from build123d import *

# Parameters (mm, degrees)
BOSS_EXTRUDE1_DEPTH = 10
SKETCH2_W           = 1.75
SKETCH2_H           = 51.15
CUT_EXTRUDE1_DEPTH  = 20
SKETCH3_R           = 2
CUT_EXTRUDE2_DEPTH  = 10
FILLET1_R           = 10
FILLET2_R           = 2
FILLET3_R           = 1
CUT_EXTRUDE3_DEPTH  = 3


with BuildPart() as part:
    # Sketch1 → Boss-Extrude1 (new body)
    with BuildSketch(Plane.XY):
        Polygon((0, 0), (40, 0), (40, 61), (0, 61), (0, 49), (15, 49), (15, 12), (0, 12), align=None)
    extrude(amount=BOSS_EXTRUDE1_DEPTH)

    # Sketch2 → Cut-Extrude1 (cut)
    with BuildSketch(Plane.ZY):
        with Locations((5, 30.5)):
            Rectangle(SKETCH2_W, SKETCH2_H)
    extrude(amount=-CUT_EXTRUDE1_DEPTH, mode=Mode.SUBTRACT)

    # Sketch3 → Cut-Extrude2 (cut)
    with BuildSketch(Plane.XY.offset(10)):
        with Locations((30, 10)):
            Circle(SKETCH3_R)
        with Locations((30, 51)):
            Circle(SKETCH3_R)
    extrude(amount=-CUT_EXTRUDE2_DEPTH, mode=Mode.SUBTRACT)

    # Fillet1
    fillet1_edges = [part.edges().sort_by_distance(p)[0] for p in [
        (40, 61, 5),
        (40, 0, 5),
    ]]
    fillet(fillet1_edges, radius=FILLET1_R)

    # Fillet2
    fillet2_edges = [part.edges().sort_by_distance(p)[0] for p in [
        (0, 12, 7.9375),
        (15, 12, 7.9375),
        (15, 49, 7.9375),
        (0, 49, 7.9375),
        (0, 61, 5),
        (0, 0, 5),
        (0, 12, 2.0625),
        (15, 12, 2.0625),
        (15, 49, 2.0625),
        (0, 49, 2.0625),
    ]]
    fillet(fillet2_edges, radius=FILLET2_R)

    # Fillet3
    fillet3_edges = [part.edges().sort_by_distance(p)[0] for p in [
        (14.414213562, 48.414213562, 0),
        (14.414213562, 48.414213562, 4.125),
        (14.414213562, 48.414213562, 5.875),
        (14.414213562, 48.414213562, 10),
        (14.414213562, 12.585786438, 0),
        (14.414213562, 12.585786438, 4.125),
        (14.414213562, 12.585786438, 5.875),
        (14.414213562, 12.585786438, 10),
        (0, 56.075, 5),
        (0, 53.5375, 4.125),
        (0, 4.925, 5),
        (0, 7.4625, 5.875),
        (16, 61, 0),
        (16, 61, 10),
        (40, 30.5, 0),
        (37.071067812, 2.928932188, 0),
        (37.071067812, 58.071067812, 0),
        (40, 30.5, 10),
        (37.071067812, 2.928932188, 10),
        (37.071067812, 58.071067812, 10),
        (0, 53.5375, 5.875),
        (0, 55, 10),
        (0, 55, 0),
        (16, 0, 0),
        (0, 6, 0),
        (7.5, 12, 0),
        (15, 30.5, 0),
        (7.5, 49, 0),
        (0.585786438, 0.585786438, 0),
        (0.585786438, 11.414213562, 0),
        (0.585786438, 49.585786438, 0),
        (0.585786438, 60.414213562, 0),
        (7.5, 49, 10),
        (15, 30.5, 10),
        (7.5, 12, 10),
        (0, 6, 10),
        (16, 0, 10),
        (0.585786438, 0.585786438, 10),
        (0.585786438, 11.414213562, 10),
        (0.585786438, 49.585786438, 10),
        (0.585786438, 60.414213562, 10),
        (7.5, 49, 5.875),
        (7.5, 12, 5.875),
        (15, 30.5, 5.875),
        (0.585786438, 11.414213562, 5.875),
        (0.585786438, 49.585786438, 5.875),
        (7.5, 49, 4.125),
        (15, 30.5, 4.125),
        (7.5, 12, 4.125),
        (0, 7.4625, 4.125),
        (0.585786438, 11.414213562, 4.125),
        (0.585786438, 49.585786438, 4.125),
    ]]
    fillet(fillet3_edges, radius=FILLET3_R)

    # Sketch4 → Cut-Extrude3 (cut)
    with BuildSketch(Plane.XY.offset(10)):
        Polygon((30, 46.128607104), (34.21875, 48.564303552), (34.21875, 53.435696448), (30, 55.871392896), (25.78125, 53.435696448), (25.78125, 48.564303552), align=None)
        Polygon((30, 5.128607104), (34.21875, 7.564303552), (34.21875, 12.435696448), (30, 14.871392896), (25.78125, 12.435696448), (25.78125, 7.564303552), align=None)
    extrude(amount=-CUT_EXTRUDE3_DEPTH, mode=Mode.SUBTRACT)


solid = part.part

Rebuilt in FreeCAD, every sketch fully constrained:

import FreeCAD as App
import Part
import Sketcher
from FreeCAD import Vector
Q = App.Units.Quantity


def edges_at(feature, points):
    """Names of the edges that pass closest to the given points."""
    edges = feature.Shape.Edges
    near = lambda p: min(range(len(edges)), key=lambda i: edges[i].distToShape(Part.Vertex(*p))[0])
    return sorted({f"Edge{near(p) + 1}" for p in points})


def add_polygon(sketch, points):
    """Adds a closed chain of lines whose ends are joined by coincident constraints."""
    first, n = sketch.GeometryCount, len(points)
    for a, b in zip(points, points[1:] + points[:1]):
        sketch.addGeometry(Part.LineSegment(App.Vector(*a, 0), App.Vector(*b, 0)), False)
    for i in range(n):
        sketch.addConstraint(Sketcher.Constraint("Coincident", first + i, 2, first + (i + 1) % n, 1))

doc = App.newDocument("Part")
params = doc.addObject("Spreadsheet::Sheet", "Params")
for row, (alias, value) in enumerate([
    ("sketch1_width", "40 mm"),
    ("sketch1_width2", "15 mm"),
    ("sketch1_height", "61 mm"),
    ("sketch1_height2", "12 mm"),
    ("pad1_length", "10 mm"),
    ("sketch2_width", "51.15 mm"),
    ("sketch2_height", "1.75 mm"),
    ("pocket1_length", "20 mm"),
    ("sketch3_diameter", "4 mm"),
    ("pocket2_length", "10 mm"),
    ("fillet_radius", "10 mm"),
    ("fillet2_radius", "2 mm"),
    ("fillet3_radius", "1 mm"),
    ("pocket3_length", "3 mm"),
], start=1):
    params.set(f"A{row}", alias)
    params.set(f"B{row}", "=" + value)
    params.setAlias(f"B{row}", alias)

body = doc.addObject("PartDesign::Body", "Body")

# Sketch on XY plane
sketch1 = body.newObject("Sketcher::SketchObject", "Sketch")
sketch1.AttachmentSupport = (doc.getObject("XY_Plane"), [""])
sketch1.MapMode = "FlatFace"
add_polygon(sketch1, [(0, 0), (40, 0), (40, 61), (0, 61), (0, 49), (15, 49), (15, 12), (0, 12)])  # lines 0-7
sketch1.addConstraint([
    Sketcher.Constraint("Horizontal", 0),
    Sketcher.Constraint("Vertical", 1),
    Sketcher.Constraint("Horizontal", 2),
    Sketcher.Constraint("Vertical", 3),
    Sketcher.Constraint("Horizontal", 4),
    Sketcher.Constraint("Vertical", 5),
    Sketcher.Constraint("Horizontal", 6),
    Sketcher.Constraint("Vertical", 7),
    Sketcher.Constraint("Coincident", 7, 2, -1, 1),
    Sketcher.Constraint("PointOnObject", 2, 2, -2),
    Sketcher.Constraint("Equal", 3, 7),
    Sketcher.Constraint("DistanceX", 0, 1, 0, 2, 40.0),
    Sketcher.Constraint("DistanceX", 4, 1, 4, 2, 15.0),
    Sketcher.Constraint("DistanceY", 1, 1, 1, 2, 61.0),
    Sketcher.Constraint("DistanceY", 3, 2, 3, 1, 12.0),
])
sketch1.setExpression("Constraints[19]", "Params.sketch1_width")
sketch1.setExpression("Constraints[20]", "Params.sketch1_width2")
sketch1.setExpression("Constraints[21]", "Params.sketch1_height")
sketch1.setExpression("Constraints[22]", "Params.sketch1_height2")
pad1 = body.newObject("PartDesign::Pad", "Pad")
pad1.Profile = sketch1
pad1.setExpression("Length", "Params.pad1_length")

# Sketch on YZ plane
sketch2 = body.newObject("Sketcher::SketchObject", "Sketch001")
sketch2.AttachmentSupport = (doc.getObject("YZ_Plane"), [""])
sketch2.MapMode = "FlatFace"
add_polygon(sketch2, [(56.075, 4.125), (4.925, 4.125), (4.925, 5.875), (56.075, 5.875)])  # lines 0-3
sketch2.addConstraint([
    Sketcher.Constraint("Horizontal", 0),
    Sketcher.Constraint("Vertical", 1),
    Sketcher.Constraint("Horizontal", 2),
    Sketcher.Constraint("Vertical", 3),
    Sketcher.Constraint("DistanceX", 0, 2, 0, 1, 51.15),
    Sketcher.Constraint("DistanceY", 1, 1, 1, 2, 1.75),
    Sketcher.Constraint("DistanceX", -1, 1, 0, 2, 4.925),
    Sketcher.Constraint("DistanceY", -1, 1, 0, 2, 4.125),
])
sketch2.setExpression("Constraints[8]", "Params.sketch2_width")
sketch2.setExpression("Constraints[9]", "Params.sketch2_height")
pocket1 = body.newObject("PartDesign::Pocket", "Pocket")
pocket1.Profile = sketch2
pocket1.setExpression("Length", "Params.pocket1_length")
pocket1.Reversed = True

# Sketch on XY plane
sketch3 = body.newObject("Sketcher::SketchObject", "Sketch002")
sketch3.AttachmentSupport = (doc.getObject("XY_Plane"), [""])
sketch3.MapMode = "FlatFace"
sketch3.AttachmentOffset = App.Placement(Vector(0, 0, 10), App.Rotation())
sketch3.addGeometry([
    Part.Circle(Vector(30, 10, 0), Vector(0, 0, 1), 2),
    Part.Circle(Vector(30, 51, 0), Vector(0, 0, 1), 2),
], False)
sketch3.addConstraint([
    Sketcher.Constraint("Equal", 0, 1),
    Sketcher.Constraint("Vertical", 0, 3, 1, 3),
    Sketcher.Constraint("Diameter", 0, 4.0),
    Sketcher.Constraint("DistanceX", -1, 1, 0, 3, 30.0),
    Sketcher.Constraint("DistanceY", -1, 1, 0, 3, 10.0),
    Sketcher.Constraint("DistanceY", -1, 1, 1, 3, 51.0),
])
sketch3.setExpression("Constraints[2]", "Params.sketch3_diameter")
pocket2 = body.newObject("PartDesign::Pocket", "Pocket001")
pocket2.Profile = sketch3
pocket2.setExpression("Length", "Params.pocket2_length")
doc.recompute()

fillet = body.newObject("PartDesign::Fillet", "Fillet")
fillet.Base = (pocket2, edges_at(pocket2, [(40, 61, 5), (40, 0, 5)]))
fillet.setExpression("Radius", "Params.fillet_radius")
doc.recompute()

fillet2 = body.newObject("PartDesign::Fillet", "Fillet001")
fillet2.Base = (fillet, edges_at(fillet, [
    (0, 12, 7.938),
    (15, 12, 7.938),
    (15, 49, 7.938),
    (0, 49, 7.938),
    (0, 61, 5),
    (0, 0, 5),
    (0, 12, 2.062),
    (15, 12, 2.062),
    (15, 49, 2.062),
    (0, 49, 2.062),
]))
fillet2.setExpression("Radius", "Params.fillet2_radius")
doc.recompute()

fillet3 = body.newObject("PartDesign::Fillet", "Fillet002")
fillet3.Base = (fillet2, edges_at(fillet2, [
    (14.414, 48.414, 0),
    (14.414, 48.414, 4.125),
    (14.414, 48.414, 5.875),
    (14.414, 48.414, 10),
    (14.414, 12.586, 0),
    (14.414, 12.586, 4.125),
    (14.414, 12.586, 5.875),
    (14.414, 12.586, 10),
    (0, 56.075, 5),
    (0, 53.538, 4.125),
    (0, 4.925, 5),
    (0, 7.463, 5.875),
    (16, 61, 0),
    (16, 61, 10),
    (40, 30.5, 0),
    (37.071, 2.929, 0),
    (37.071, 58.071, 0),
    (40, 30.5, 10),
    (37.071, 2.929, 10),
    (37.071, 58.071, 10),
    (0, 53.538, 5.875),
    (0, 55, 10),
    (0, 55, 0),
    (16, 0, 0),
    (0, 6, 0),
    (7.5, 12, 0),
    (15, 30.5, 0),
    (7.5, 49, 0),
    (0.586, 0.586, 0),
    (0.586, 11.414, 0),
    (0.586, 49.586, 0),
    (0.586, 60.414, 0),
    (7.5, 49, 10),
    (15, 30.5, 10),
    (7.5, 12, 10),
    (0, 6, 10),
    (16, 0, 10),
    (0.586, 0.586, 10),
    (0.586, 11.414, 10),
    (0.586, 49.586, 10),
    (0.586, 60.414, 10),
    (7.5, 49, 5.875),
    (7.5, 12, 5.875),
    (15, 30.5, 5.875),
    (0.586, 11.414, 5.875),
    (0.586, 49.586, 5.875),
    (7.5, 49, 4.125),
    (15, 30.5, 4.125),
    (7.5, 12, 4.125),
    (0, 7.463, 4.125),
    (0.586, 11.414, 4.125),
    (0.586, 49.586, 4.125),
]))
fillet3.setExpression("Radius", "Params.fillet3_radius")

# Sketch on XY plane
sketch4 = body.newObject("Sketcher::SketchObject", "Sketch003")
sketch4.AttachmentSupport = (doc.getObject("XY_Plane"), [""])
sketch4.MapMode = "FlatFace"
sketch4.AttachmentOffset = App.Placement(Vector(0, 0, 10), App.Rotation())
add_polygon(sketch4, [(30, 46.128607), (34.21875, 48.564304), (34.21875, 53.435696), (30, 55.871393), (25.78125, 53.435696), (25.78125, 48.564304)])  # lines 0-5
add_polygon(sketch4, [(30, 5.128607), (34.21875, 7.564304), (34.21875, 12.435696), (30, 14.871393), (25.78125, 12.435696), (25.78125, 7.564304)])  # lines 6-11
sketch4.addConstraint([
    Sketcher.Constraint("Vertical", 1),
    Sketcher.Constraint("Vertical", 4),
    Sketcher.Constraint("Vertical", 7),
    Sketcher.Constraint("Vertical", 10),
    Sketcher.Constraint("Parallel", 0, 3),
    Sketcher.Constraint("Parallel", 2, 5),
    Sketcher.Constraint("Parallel", 3, 6),
    Sketcher.Constraint("Parallel", 5, 8),
    Sketcher.Constraint("Parallel", 6, 9),
    Sketcher.Constraint("Parallel", 8, 11),
    Sketcher.Constraint("Horizontal", 1, 2, 3, 2),
    Sketcher.Constraint("Horizontal", 0, 2, 4, 2),
    Sketcher.Constraint("Horizontal", 7, 2, 9, 2),
    Sketcher.Constraint("Horizontal", 6, 2, 10, 2),
    Sketcher.Constraint("Vertical", 2, 2, 5, 2),
    Sketcher.Constraint("Vertical", 1, 2, 6, 2),
    Sketcher.Constraint("Vertical", 5, 2, 8, 2),
    Sketcher.Constraint("Equal", 4, 7),
    Sketcher.Constraint("Angle", 0, Q("30 deg")),
    Sketcher.Constraint("DistanceX", -1, 1, 2, 2, 30.0),
    Sketcher.Constraint("DistanceY", 6, 2, 0, 2, 41.0),
    Sketcher.Constraint("DistanceX", 3, 2, 1, 2, 8.4375),
    Sketcher.Constraint("DistanceY", 1, 1, 1, 2, 4.871393),
    Sketcher.Constraint("DistanceY", -1, 1, 0, 2, 48.564304),
])
pocket3 = body.newObject("PartDesign::Pocket", "Pocket002")
pocket3.Profile = sketch4
pocket3.setExpression("Length", "Params.pocket3_length")

doc.recompute()
